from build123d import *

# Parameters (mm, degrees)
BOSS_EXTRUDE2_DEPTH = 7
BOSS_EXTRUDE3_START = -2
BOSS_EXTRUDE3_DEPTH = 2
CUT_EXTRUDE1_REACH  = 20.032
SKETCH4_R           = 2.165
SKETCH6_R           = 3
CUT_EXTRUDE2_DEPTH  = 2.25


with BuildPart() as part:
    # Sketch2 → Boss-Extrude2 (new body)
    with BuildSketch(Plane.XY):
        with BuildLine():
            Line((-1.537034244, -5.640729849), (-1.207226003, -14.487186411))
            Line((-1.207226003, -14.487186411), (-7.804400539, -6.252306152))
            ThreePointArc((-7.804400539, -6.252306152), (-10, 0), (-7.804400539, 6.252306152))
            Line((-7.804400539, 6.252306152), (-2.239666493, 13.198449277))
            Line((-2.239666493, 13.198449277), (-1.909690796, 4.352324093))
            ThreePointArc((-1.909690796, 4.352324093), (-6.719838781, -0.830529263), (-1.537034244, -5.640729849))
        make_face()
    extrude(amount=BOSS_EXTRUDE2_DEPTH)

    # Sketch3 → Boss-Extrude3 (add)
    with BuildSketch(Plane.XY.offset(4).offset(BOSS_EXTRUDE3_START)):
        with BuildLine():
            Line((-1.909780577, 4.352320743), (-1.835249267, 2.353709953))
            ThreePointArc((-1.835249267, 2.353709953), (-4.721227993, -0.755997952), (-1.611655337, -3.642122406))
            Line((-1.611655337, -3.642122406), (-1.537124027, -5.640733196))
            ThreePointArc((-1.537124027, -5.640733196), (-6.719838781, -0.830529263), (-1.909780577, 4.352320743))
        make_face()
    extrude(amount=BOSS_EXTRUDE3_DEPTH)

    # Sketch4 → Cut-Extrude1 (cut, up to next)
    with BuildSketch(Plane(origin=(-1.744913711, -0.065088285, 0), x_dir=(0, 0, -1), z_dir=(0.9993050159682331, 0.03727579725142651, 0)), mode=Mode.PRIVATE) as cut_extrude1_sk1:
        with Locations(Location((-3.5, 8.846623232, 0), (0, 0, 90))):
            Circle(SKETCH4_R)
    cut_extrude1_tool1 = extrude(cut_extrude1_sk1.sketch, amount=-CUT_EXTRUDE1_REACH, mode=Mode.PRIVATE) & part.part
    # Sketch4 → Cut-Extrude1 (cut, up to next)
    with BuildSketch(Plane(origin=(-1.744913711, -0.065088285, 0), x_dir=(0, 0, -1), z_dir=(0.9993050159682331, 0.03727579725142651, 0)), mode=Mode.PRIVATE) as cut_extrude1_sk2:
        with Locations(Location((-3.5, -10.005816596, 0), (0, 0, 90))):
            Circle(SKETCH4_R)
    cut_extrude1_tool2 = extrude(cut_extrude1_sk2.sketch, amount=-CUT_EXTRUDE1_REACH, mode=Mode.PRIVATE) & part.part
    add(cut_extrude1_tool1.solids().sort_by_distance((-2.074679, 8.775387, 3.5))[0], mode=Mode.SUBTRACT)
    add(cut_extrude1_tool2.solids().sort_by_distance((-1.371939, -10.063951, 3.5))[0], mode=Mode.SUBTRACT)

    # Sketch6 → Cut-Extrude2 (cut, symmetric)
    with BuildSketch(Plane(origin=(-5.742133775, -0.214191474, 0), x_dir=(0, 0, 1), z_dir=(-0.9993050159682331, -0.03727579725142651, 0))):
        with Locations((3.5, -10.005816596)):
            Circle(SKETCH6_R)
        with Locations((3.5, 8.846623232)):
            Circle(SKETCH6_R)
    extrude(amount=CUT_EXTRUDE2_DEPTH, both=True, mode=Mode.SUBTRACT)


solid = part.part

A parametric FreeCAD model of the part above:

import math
import FreeCAD as App
import Part
import Sketcher

doc = App.newDocument("Part")
body = doc.addObject("PartDesign::Body", "Body")

sketch1 = doc.addObject("Sketcher::SketchObject", "Sketch")
body.addObject(sketch1)
sketch1.AttachmentSupport = (doc.XY_Plane, [""])
sketch1.MapMode = "FlatFace"
sketch1.addGeometry(Part.LineSegment(App.Vector(-1.207226, -14.487186, 0), App.Vector(-1.537034, -5.64073, 0)), False)
sketch1.addGeometry(Part.ArcOfCircle(Part.Circle(App.Vector(-1.723312, -0.644201, 0), App.Vector(0, 0, 1), 5), math.radians(92.136241), math.radians(272.135078)), False)
sketch1.addGeometry(Part.LineSegment(App.Vector(-1.909691, 4.352324, 0), App.Vector(-2.239666, 13.198449, 0)), False)
sketch1.addGeometry(Part.LineSegment(App.Vector(-2.239666, 13.198449, 0), App.Vector(-7.804401, 6.252306, 0)), False)
sketch1.addGeometry(Part.ArcOfCircle(Part.Circle(App.Vector(0, 0, 0), App.Vector(0, 0, 1), 10), math.radians(141.300884), math.radians(218.699116)), False)
sketch1.addGeometry(Part.LineSegment(App.Vector(-7.804401, -6.252306, 0), App.Vector(-1.207226, -14.487186, 0)), False)
sketch1.addConstraint(Sketcher.Constraint("Coincident", 0, 2, 1, 2))
sketch1.addConstraint(Sketcher.Constraint("Coincident", 1, 1, 2, 1))
sketch1.addConstraint(Sketcher.Constraint("Coincident", 2, 2, 3, 1))
sketch1.addConstraint(Sketcher.Constraint("Tangent", 3, 2, 4, 1))
sketch1.addConstraint(Sketcher.Constraint("Tangent", 4, 2, 5, 1))
sketch1.addConstraint(Sketcher.Constraint("Coincident", 5, 2, 0, 1))
sketch1.addConstraint(Sketcher.Constraint("Coincident", 4, 3, -1, 1))
sketch1.addConstraint(Sketcher.Constraint("Vertical", 3, 2, 4, 2))
sketch1.addConstraint(Sketcher.Constraint("Radius", 1, 5.0))
sketch1.addConstraint(Sketcher.Constraint("Radius", 4, 10.0))
sketch1.addConstraint(Sketcher.Constraint("DistanceY", 1, 3, -1, 1, 0.644201))
sketch1.addConstraint(Sketcher.Constraint("DistanceX", 3, 2, -1, 1, 7.804401))
sketch1.addConstraint(Sketcher.Constraint("Distance", 3, 8.90029))
sketch1.addConstraint(Sketcher.Constraint("DistanceX", 1, 3, -1, 1, 1.723312))
sketch1.addConstraint(Sketcher.Constraint("DistanceY", 0, 2, -1, 1, 5.64073))
sketch1.addConstraint(Sketcher.Constraint("DistanceX", 1, 1, -1, 1, 1.909691))
sketch1.addConstraint(Sketcher.Constraint("DistanceX", 0, 2, 5, 2, 0.329808))
pad1 = doc.addObject("PartDesign::Pad", "Pad")
body.addObject(pad1)
pad1.Profile = sketch1
pad1.Length = 7

sketch2 = doc.addObject("Sketcher::SketchObject", "Sketch001")
body.addObject(sketch2)
sketch2.AttachmentSupport = (doc.XY_Plane, [""])
sketch2.MapMode = "FlatFace"
sketch2.AttachmentOffset = App.Placement(App.Vector(0, 0, 2), App.Rotation())
sketch2.addGeometry(Part.LineSegment(App.Vector(-1.8, 2.4, 0), App.Vector(-1.9, 4.4, 0)), False)
sketch2.addGeometry(Part.ArcOfCircle(Part.Circle(App.Vector(-1.7, -0.6, 0), App.Vector(0, 0, 1), 5), math.radians(92), math.radians(272)), False)
sketch2.addGeometry(Part.LineSegment(App.Vector(-1.5, -5.6, 0), App.Vector(-1.6, -3.6, 0)), False)
sketch2.addGeometry(Part.ArcOfCircle(Part.Circle(App.Vector(-1.7, -0.6, 0), App.Vector(0, 0, 1), 3), math.radians(92), math.radians(272)), False)
sketch2.addConstraint(Sketcher.Constraint("Coincident", 0, 2, 1, 1))
sketch2.addConstraint(Sketcher.Constraint("Coincident", 1, 2, 2, 1))
sketch2.addConstraint(Sketcher.Constraint("Coincident", 2, 2, 3, 2))
sketch2.addConstraint(Sketcher.Constraint("Coincident", 3, 1, 0, 1))
sketch2.addConstraint(Sketcher.Constraint("Coincident", 3, 3, 1, 3))
sketch2.addConstraint(Sketcher.Constraint("Parallel", 0, 2))
sketch2.addConstraint(Sketcher.Constraint("Radius", 1, 5.0))
sketch2.addConstraint(Sketcher.Constraint("Radius", 3, 3.0))
sketch2.addConstraint(Sketcher.Constraint("DistanceY", 1, 3, -1, 1, 0.644201))
sketch2.addConstraint(Sketcher.Constraint("DistanceX", 1, 3, -1, 1, 1.723312))
sketch2.addConstraint(Sketcher.Constraint("DistanceX", 0, 2, -1, 1, 1.909781))
sketch2.addConstraint(Sketcher.Constraint("DistanceX", 3, 1, -1, 1, 1.835249))
sketch2.addConstraint(Sketcher.Constraint("DistanceY", 2, 2, 1, 3, 2.997921))
pad2 = doc.addObject("PartDesign::Pad", "Pad001")
body.addObject(pad2)
pad2.Profile = sketch2
pad2.Length = 2

sketch3 = doc.addObject("Sketcher::SketchObject", "Sketch002")
body.addObject(sketch3)
sketch3.Placement = App.Placement(App.Vector(-1.744914, -0.065088, 0), App.Rotation(App.Vector(0, 0, -1), App.Vector(-0.037275797, 0.999305016, 0), App.Vector(0.999305016, 0.037275797, 0), "ZXY"))
sketch3.addGeometry(Part.Circle(App.Vector(-3.5, 8.8, 0), App.Vector(0, 0, 1), 2.2), False)
sketch3.addConstraint(Sketcher.Constraint("Diameter", 0, 4.33))
sketch3.addConstraint(Sketcher.Constraint("DistanceX", 0, 3, -1, 1, 3.5))
sketch3.addConstraint(Sketcher.Constraint("DistanceY", -1, 1, 0, 3, 8.846623))
pocket1 = doc.addObject("PartDesign::Pocket", "Pocket")
body.addObject(pocket1)
pocket1.Profile = sketch3
pocket1.Type = "UpToFirst"

sketch4 = doc.addObject("Sketcher::SketchObject", "Sketch003")
body.addObject(sketch4)
sketch4.Placement = App.Placement(App.Vector(-1.744914, -0.065088, 0), App.Rotation(App.Vector(0, 0, -1), App.Vector(-0.037275797, 0.999305016, 0), App.Vector(0.999305016, 0.037275797, 0), "ZXY"))
sketch4.addGeometry(Part.Circle(App.Vector(-3.5, -10, 0), App.Vector(0, 0, 1), 2.2), False)
sketch4.addConstraint(Sketcher.Constraint("Diameter", 0, 4.33))
sketch4.addConstraint(Sketcher.Constraint("DistanceX", 0, 3, -1, 1, 3.5))
sketch4.addConstraint(Sketcher.Constraint("DistanceY", 0, 3, -1, 1, 10.005817))
pocket2 = doc.addObject("PartDesign::Pocket", "Pocket001")
body.addObject(pocket2)
pocket2.Profile = sketch4
pocket2.Type = "UpToFirst"

sketch5 = doc.addObject("Sketcher::SketchObject", "Sketch004")
body.addObject(sketch5)
sketch5.Placement = App.Placement(App.Vector(-5.742134, -0.214191, 0), App.Rotation(App.Vector(0, 0, 1), App.Vector(-0.037275797, 0.999305016, 0), App.Vector(-0.999305016, -0.037275797, 0), "ZXY"))
sketch5.addGeometry(Part.Circle(App.Vector(3.5, -10, 0), App.Vector(0, 0, 1), 3), False)
sketch5.addGeometry(Part.Circle(App.Vector(3.5, 8.8, 0), App.Vector(0, 0, 1), 3), False)
sketch5.addConstraint(Sketcher.Constraint("Equal", 0, 1))
sketch5.addConstraint(Sketcher.Constraint("Vertical", 0, 3, 1, 3))
sketch5.addConstraint(Sketcher.Constraint("Diameter", 0, 6.0))
sketch5.addConstraint(Sketcher.Constraint("DistanceX", -1, 1, 0, 3, 3.5))
sketch5.addConstraint(Sketcher.Constraint("DistanceY", 0, 3, 1, 3, 18.85244))
sketch5.addConstraint(Sketcher.Constraint("DistanceY", 0, 3, -1, 1, 10.005817))
pocket3 = doc.addObject("PartDesign::Pocket", "Pocket002")
body.addObject(pocket3)
pocket3.Profile = sketch5
pocket3.Length = 4.5
pocket3.Midplane = True

doc.recompute()
